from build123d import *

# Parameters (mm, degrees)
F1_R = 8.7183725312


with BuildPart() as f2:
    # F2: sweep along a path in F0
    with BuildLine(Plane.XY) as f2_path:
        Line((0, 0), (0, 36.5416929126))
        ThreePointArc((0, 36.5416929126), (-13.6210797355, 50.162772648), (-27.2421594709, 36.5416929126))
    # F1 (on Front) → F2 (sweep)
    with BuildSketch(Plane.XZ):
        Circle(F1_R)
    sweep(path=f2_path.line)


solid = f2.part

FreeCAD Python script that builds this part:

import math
import FreeCAD as App
import Part
import Sketcher

V = App.Vector
Q = App.Units.Quantity

doc = App.newDocument("Part")
body = doc.addObject("PartDesign::Body", "Body")

# Sketch on XZ plane
sketch1 = body.newObject("Sketcher::SketchObject", "Sketch")
sketch1.AttachmentSupport = (doc.getObject("XZ_Plane"), [""])
sketch1.MapMode = "FlatFace"
sketch1.addGeometry(Part.Circle(V(0, 0, 0), V(0, 0, 1), 9), False)
sketch1.addConstraint([
    Sketcher.Constraint("Coincident", 0, 3, -1, 1),
    Sketcher.Constraint("Diameter", 0, Q("17.436745 mm")),
])

# Sketch on XY plane
sketch2 = body.newObject("Sketcher::SketchObject", "Sketch001")
sketch2.AttachmentSupport = (doc.getObject("XY_Plane"), [""])
sketch2.MapMode = "FlatFace"
sketch2.addGeometry([
    Part.LineSegment(V(0, 0, 0), V(0, 37, 0)),
    Part.ArcOfCircle(Part.Circle(V(-14, 37, 0), V(0, 0, 1), 14), math.radians(0), math.radians(180)),
], False)
sketch2.addConstraint([
    Sketcher.Constraint("Tangent", 0, 2, 1, 1),
    Sketcher.Constraint("Vertical", 0),
    Sketcher.Constraint("Coincident", 0, 1, -1, 1),
    Sketcher.Constraint("Horizontal", 0, 2, 1, 2),
    Sketcher.Constraint("Radius", 1, Q("13.62108 mm")),
    Sketcher.Constraint("DistanceY", 0, 1, 0, 2, Q("36.541693 mm")),
])
doc.recompute()

additivepipe = body.newObject("PartDesign::AdditivePipe", "AdditivePipe")
additivepipe.Profile = sketch1
additivepipe.Spine = (sketch2, ["Edge1", "Edge2"])

doc.recompute()
